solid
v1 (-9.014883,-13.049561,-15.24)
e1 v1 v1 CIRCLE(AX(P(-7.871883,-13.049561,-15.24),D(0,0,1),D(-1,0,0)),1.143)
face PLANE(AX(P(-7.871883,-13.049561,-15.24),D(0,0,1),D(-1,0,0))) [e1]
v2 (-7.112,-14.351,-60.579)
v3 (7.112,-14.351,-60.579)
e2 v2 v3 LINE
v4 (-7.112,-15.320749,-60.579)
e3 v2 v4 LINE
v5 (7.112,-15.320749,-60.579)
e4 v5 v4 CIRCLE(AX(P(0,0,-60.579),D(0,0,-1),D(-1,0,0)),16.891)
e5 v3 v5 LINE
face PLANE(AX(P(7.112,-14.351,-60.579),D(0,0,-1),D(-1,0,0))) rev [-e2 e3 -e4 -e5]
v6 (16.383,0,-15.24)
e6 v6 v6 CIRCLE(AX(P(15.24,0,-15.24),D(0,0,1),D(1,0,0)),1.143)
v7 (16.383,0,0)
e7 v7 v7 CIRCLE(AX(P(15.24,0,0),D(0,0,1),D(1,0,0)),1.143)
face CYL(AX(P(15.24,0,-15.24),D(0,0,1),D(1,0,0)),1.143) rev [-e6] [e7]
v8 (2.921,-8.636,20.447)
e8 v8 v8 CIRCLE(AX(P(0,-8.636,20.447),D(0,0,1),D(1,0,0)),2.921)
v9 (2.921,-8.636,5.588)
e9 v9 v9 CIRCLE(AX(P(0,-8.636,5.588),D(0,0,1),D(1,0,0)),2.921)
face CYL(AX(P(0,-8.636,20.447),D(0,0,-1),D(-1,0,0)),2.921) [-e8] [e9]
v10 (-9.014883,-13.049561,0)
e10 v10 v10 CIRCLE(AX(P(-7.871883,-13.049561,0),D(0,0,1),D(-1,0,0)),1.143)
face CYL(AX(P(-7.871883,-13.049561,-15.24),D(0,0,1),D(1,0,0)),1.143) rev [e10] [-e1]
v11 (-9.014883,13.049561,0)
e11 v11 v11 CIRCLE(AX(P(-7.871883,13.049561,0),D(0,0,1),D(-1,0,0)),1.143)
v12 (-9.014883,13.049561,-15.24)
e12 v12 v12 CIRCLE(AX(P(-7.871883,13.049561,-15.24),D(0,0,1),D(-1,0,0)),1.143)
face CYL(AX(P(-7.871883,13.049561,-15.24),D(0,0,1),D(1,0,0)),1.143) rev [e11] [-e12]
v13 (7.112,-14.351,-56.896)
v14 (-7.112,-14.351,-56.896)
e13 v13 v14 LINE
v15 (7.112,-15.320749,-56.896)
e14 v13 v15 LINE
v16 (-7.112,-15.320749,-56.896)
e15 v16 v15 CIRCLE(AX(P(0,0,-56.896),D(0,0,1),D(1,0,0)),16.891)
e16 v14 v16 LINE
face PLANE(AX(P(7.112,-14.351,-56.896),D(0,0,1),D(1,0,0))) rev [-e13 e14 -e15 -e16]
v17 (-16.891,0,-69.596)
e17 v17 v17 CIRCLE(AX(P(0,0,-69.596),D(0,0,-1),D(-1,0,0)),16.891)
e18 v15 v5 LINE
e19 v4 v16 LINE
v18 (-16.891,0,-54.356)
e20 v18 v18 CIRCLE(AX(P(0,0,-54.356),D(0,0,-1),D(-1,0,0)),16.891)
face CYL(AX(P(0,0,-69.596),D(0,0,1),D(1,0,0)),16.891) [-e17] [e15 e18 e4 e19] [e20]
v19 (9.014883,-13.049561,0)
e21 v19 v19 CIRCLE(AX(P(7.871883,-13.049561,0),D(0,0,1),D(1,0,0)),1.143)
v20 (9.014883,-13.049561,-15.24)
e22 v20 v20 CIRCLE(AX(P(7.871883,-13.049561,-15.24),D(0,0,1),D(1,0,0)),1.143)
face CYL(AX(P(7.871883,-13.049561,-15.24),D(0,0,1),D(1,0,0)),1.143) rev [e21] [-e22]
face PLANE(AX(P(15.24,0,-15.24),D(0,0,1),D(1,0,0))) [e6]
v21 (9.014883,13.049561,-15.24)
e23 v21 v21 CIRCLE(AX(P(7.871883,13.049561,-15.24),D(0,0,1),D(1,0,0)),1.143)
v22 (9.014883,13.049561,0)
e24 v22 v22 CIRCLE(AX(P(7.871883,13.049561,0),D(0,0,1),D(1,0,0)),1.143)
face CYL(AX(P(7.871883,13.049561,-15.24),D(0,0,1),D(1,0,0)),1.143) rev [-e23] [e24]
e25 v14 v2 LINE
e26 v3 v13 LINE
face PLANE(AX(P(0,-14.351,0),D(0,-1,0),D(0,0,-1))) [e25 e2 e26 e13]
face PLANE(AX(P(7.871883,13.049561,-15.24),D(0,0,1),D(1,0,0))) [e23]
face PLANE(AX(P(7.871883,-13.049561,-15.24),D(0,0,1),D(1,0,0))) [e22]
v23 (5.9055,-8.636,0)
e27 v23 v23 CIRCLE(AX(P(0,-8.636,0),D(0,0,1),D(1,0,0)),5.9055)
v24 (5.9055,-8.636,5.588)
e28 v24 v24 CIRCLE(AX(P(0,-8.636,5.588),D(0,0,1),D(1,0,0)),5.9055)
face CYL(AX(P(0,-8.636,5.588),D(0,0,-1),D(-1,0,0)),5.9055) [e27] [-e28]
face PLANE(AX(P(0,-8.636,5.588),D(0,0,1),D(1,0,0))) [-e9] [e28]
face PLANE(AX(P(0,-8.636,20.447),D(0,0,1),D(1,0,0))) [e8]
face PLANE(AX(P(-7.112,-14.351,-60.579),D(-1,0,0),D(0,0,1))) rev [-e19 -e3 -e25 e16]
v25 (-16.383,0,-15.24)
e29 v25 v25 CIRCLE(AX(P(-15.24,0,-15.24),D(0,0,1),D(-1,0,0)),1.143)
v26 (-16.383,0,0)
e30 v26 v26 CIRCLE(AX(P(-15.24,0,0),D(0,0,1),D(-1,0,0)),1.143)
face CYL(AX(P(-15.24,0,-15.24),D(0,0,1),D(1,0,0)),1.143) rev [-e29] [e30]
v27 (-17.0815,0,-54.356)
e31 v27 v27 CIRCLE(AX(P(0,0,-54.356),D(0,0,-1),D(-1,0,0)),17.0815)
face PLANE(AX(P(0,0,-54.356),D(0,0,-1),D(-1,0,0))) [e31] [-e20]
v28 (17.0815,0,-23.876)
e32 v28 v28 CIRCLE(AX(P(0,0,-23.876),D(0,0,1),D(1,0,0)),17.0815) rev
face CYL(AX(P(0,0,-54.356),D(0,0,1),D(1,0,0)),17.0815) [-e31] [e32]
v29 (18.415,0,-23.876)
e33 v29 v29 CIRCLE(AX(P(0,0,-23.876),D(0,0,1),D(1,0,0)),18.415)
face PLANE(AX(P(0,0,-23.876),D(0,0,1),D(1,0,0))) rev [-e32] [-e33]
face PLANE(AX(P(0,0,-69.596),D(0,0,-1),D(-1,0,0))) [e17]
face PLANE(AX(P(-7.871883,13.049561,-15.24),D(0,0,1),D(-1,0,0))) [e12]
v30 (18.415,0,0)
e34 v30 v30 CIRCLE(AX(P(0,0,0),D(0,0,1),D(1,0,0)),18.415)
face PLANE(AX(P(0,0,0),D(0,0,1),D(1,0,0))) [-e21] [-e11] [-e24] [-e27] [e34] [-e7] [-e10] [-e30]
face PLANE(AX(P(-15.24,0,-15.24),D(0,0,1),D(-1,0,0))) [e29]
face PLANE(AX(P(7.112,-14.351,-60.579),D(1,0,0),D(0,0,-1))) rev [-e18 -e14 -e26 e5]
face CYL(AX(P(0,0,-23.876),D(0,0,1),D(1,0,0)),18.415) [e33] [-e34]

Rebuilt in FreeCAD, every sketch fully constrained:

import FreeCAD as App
import Part
import Sketcher
Q = App.Units.Quantity

doc = App.newDocument("Part")
body = doc.addObject("PartDesign::Body", "Body")

# Sketch on XY plane
sketch1 = body.newObject("Sketcher::SketchObject", "Sketch")
sketch1.AttachmentSupport = (doc.getObject("XY_Plane"), [""])
sketch1.MapMode = "FlatFace"
sketch1.addGeometry(Part.Circle(App.Vector(0, 0, 0), App.Vector(0, 0, 1), 18), False)
sketch1.addConstraint([
    Sketcher.Constraint("Coincident", 0, 3, -1, 1),
    Sketcher.Constraint("Diameter", 0, Q("1.45 in")),
])
pad1 = body.newObject("PartDesign::Pad", "Pad")
pad1.Profile = sketch1
pad1.Length = Q("0.94 in")
pad1.Reversed = True

# Sketch on XY plane
sketch2 = body.newObject("Sketcher::SketchObject", "Sketch001")
sketch2.AttachmentSupport = (doc.getObject("XY_Plane"), [""])
sketch2.MapMode = "FlatFace"
sketch2.addGeometry(Part.Circle(App.Vector(0, -9, 0), App.Vector(0, 0, 1), 6), False)
sketch2.addConstraint([
    Sketcher.Constraint("PointOnObject", 0, 3, -2),
    Sketcher.Constraint("Diameter", 0, Q("0.465 in")),
    Sketcher.Constraint("DistanceY", 0, 3, -1, 1, Q("0.34 in")),
])
pad2 = body.newObject("PartDesign::Pad", "Pad001")
pad2.Profile = sketch2
pad2.Length = Q("0.22 in")

# Sketch on XY plane
sketch3 = body.newObject("Sketcher::SketchObject", "Sketch002")
sketch3.AttachmentSupport = (doc.getObject("XY_Plane"), [""])
sketch3.MapMode = "FlatFace"
sketch3.AttachmentOffset = App.Placement(App.Vector(0, 0, 0.22 * 25.4), App.Rotation())
sketch3.addGeometry(Part.Circle(App.Vector(0, -8.6, 0), App.Vector(0, 0, 1), 2.9), False)
sketch3.addConstraint([
    Sketcher.Constraint("PointOnObject", 0, 3, -2),
    Sketcher.Constraint("Diameter", 0, Q("0.23 in")),
    Sketcher.Constraint("DistanceY", 0, 3, -1, 1, Q("0.34 in")),
])
pad3 = body.newObject("PartDesign::Pad", "Pad002")
pad3.Profile = sketch3
pad3.Length = Q("0.585 in")

# Sketch on XY plane
sketch4 = body.newObject("Sketcher::SketchObject", "Sketch003")
sketch4.AttachmentSupport = (doc.getObject("XY_Plane"), [""])
sketch4.MapMode = "FlatFace"
sketch4.AttachmentOffset = App.Placement(App.Vector(0, 0, -0.94 * 25.4), App.Rotation())
sketch4.addGeometry(Part.Circle(App.Vector(0, 0, 0), App.Vector(0, 0, 1), 17), False)
sketch4.addConstraint([
    Sketcher.Constraint("Coincident", 0, 3, -1, 1),
    Sketcher.Constraint("Diameter", 0, Q("1.345 in")),
])
pad4 = body.newObject("PartDesign::Pad", "Pad003")
pad4.Profile = sketch4
pad4.Length = Q("1.2 in")
pad4.Reversed = True

# Sketch on XY plane
sketch5 = body.newObject("Sketcher::SketchObject", "Sketch004")
sketch5.AttachmentSupport = (doc.getObject("XY_Plane"), [""])
sketch5.MapMode = "FlatFace"
sketch5.AttachmentOffset = App.Placement(App.Vector(0, 0, -2.14 * 25.4), App.Rotation())
sketch5.addGeometry(Part.Circle(App.Vector(0, 0, 0), App.Vector(0, 0, 1), 17), False)
sketch5.addConstraint([
    Sketcher.Constraint("Coincident", 0, 3, -1, 1),
    Sketcher.Constraint("Diameter", 0, Q("1.33 in")),
])
pad5 = body.newObject("PartDesign::Pad", "Pad004")
pad5.Profile = sketch5
pad5.Length = Q("0.6 in")
pad5.Reversed = True

# Sketch on XY plane
sketch6 = body.newObject("Sketcher::SketchObject", "Sketch005")
sketch6.AttachmentSupport = (doc.getObject("XY_Plane"), [""])
sketch6.MapMode = "FlatFace"
sketch6.addGeometry([
    Part.Circle(App.Vector(7.9, -13, 0), App.Vector(0, 0, 1), 1.1),
    Part.Circle(App.Vector(15.2, 0, 0), App.Vector(0, 0, 1), 1.1),
    Part.Circle(App.Vector(7.9, 13, 0), App.Vector(0, 0, 1), 1.1),
], False)
sketch6.addConstraint([
    Sketcher.Constraint("Equal", 0, 1),
    Sketcher.Constraint("Equal", 1, 2),
    Sketcher.Constraint("Symmetric", 0, 3, 2, 3, -1),
    Sketcher.Constraint("PointOnObject", 1, 3, -1),
    Sketcher.Constraint("Diameter", 0, Q("0.09 in")),
    Sketcher.Constraint("DistanceX", -1, 1, 1, 3, Q("0.6 in")),
    Sketcher.Constraint("DistanceY", 0, 3, -1, 1, Q("13.049561 mm")),
    Sketcher.Constraint("DistanceX", -1, 1, 0, 3, Q("7.871883 mm")),
])
pocket1 = body.newObject("PartDesign::Pocket", "Pocket")
pocket1.Profile = sketch6
pocket1.Length = Q("0.6 in")
doc.recompute()

polarpattern = body.newObject("PartDesign::PolarPattern", "PolarPattern")
polarpattern.Originals = [pocket1]
polarpattern.Axis = (doc.getObject("Z_Axis"), [""])
polarpattern.Angle = 360
polarpattern.Occurrences = 2
body.Tip = polarpattern

# Sketch on XZ plane
sketch7 = body.newObject("Sketcher::SketchObject", "Sketch006")
sketch7.AttachmentSupport = (doc.getObject("XZ_Plane"), [""])
sketch7.MapMode = "FlatFace"
sketch7.AttachmentOffset = App.Placement(App.Vector(0, 0, 0.665 * 25.4), App.Rotation())
sketch7.addGeometry([
    Part.LineSegment(App.Vector(7.1, -60.6, 0), App.Vector(7.1, -56.9, 0)),
    Part.LineSegment(App.Vector(7.1, -56.9, 0), App.Vector(-7.1, -56.9, 0)),
    Part.LineSegment(App.Vector(-7.1, -56.9, 0), App.Vector(-7.1, -60.6, 0)),
    Part.LineSegment(App.Vector(-7.1, -60.6, 0), App.Vector(7.1, -60.6, 0)),
], False)
sketch7.addConstraint([
    Sketcher.Constraint("Coincident", 0, 2, 1, 1),
    Sketcher.Constraint("Coincident", 1, 2, 2, 1),
    Sketcher.Constraint("Coincident", 2, 2, 3, 1),
    Sketcher.Constraint("Coincident", 3, 2, 0, 1),
    Sketcher.Constraint("Vertical", 0),
    Sketcher.Constraint("Horizontal", 1),
    Sketcher.Constraint("Vertical", 2),
    Sketcher.Constraint("Horizontal", 3),
    Sketcher.Constraint("DistanceX", 1, 2, 1, 1, Q("0.56 in")),
    Sketcher.Constraint("DistanceY", 0, 1, 0, 2, Q("0.145 in")),
    Sketcher.Constraint("DistanceX", -1, 1, 0, 2, Q("0.28 in")),
    Sketcher.Constraint("DistanceY", 0, 2, -1, 1, Q("2.24 in")),
])
pocket2 = body.newObject("PartDesign::Pocket", "Pocket001")
pocket2.Profile = sketch7
pocket2.Length = Q("0.1 in")

doc.recompute()
